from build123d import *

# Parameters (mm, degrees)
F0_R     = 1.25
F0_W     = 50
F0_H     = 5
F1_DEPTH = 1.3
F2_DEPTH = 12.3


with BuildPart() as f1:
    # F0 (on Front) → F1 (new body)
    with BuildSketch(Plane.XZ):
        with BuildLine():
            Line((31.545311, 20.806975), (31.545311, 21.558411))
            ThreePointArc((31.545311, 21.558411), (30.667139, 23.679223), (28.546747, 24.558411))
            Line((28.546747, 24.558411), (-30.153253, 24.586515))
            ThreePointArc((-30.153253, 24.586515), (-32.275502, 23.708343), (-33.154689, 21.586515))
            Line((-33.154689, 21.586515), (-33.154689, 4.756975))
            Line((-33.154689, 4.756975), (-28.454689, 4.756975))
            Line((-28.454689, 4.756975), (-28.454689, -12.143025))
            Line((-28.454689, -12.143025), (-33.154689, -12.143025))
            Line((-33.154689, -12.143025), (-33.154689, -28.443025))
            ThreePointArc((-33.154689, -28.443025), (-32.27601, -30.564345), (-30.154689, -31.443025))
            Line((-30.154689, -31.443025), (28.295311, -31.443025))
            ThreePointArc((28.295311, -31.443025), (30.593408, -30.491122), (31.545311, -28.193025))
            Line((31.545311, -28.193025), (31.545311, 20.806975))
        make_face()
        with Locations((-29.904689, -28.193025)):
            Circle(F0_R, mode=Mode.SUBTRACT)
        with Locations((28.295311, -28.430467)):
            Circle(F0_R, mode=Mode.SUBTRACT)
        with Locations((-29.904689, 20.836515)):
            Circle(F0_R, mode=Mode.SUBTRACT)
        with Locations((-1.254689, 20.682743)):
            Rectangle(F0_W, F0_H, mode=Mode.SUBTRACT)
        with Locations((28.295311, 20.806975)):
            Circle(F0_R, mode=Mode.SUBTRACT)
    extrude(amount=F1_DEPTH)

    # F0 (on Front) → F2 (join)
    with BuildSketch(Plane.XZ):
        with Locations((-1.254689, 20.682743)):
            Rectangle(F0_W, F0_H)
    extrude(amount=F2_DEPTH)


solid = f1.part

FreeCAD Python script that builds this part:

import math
import FreeCAD as App
import Part
import Sketcher

V = App.Vector
Q = App.Units.Quantity

doc = App.newDocument("Part")
body = doc.addObject("PartDesign::Body", "Body")

sketch1 = body.newObject("Sketcher::SketchObject", "Sketch")
sketch1.AttachmentSupport = (doc.getObject("XZ_Plane"), [""])
sketch1.MapMode = "FlatFace"
sketch1.addGeometry([
    Part.ArcOfCircle(Part.Circle(V(28.5, 21.6, 0), V(0, 0, 1), 3), math.radians(0), math.radians(90)),
    Part.LineSegment(V(28.5, 24.6, 0), V(-30.2, 24.6, 0)),
    Part.ArcOfCircle(Part.Circle(V(-30.2, 21.6, 0), V(0, 0, 1), 3), math.radians(90), math.radians(180)),
    Part.LineSegment(V(-33.2, 21.6, 0), V(-33.2, 4.8, 0)),
    Part.LineSegment(V(-33.2, 4.8, 0), V(-28.5, 4.8, 0)),
    Part.LineSegment(V(-28.5, 4.8, 0), V(-28.5, -12.1, 0)),
    Part.LineSegment(V(-28.5, -12.1, 0), V(-33.2, -12.1, 0)),
    Part.LineSegment(V(-33.2, -12.1, 0), V(-33.2, -28.4, 0)),
    Part.ArcOfCircle(Part.Circle(V(-30.2, -28.4, 0), V(0, 0, 1), 3), math.radians(180), math.radians(270)),
    Part.LineSegment(V(-30.2, -31.4, 0), V(28.3, -31.4, 0)),
    Part.ArcOfCircle(Part.Circle(V(28.3, -28.2, 0), V(0, 0, 1), 3.3), math.radians(-90), math.radians(0)),
    Part.LineSegment(V(31.5, -28.2, 0), V(31.5, 21.6, 0)),
    Part.Circle(V(-29.9, -28.2, 0), V(0, 0, 1), 1.2),
    Part.Circle(V(28.3, -28.4, 0), V(0, 0, 1), 1.2),
    Part.Circle(V(-29.9, 20.8, 0), V(0, 0, 1), 1.2),
    Part.LineSegment(V(23.7, 18.2, 0), V(-26.3, 18.2, 0)),
    Part.LineSegment(V(-26.3, 18.2, 0), V(-26.3, 23.2, 0)),
    Part.LineSegment(V(-26.3, 23.2, 0), V(23.7, 23.2, 0)),
    Part.LineSegment(V(23.7, 23.2, 0), V(23.7, 18.2, 0)),
    Part.Circle(V(28.3, 20.8, 0), V(0, 0, 1), 1.2),
], False)
sketch1.addConstraint([
    Sketcher.Constraint("Tangent", 0, 2, 1, 1),
    Sketcher.Constraint("Tangent", 1, 2, 2, 1),
    Sketcher.Constraint("Tangent", 2, 2, 3, 1),
    Sketcher.Constraint("Coincident", 3, 2, 4, 1),
    Sketcher.Constraint("Coincident", 4, 2, 5, 1),
    Sketcher.Constraint("Coincident", 5, 2, 6, 1),
    Sketcher.Constraint("Coincident", 6, 2, 7, 1),
    Sketcher.Constraint("Tangent", 7, 2, 8, 1),
    Sketcher.Constraint("Tangent", 8, 2, 9, 1),
    Sketcher.Constraint("Tangent", 9, 2, 10, 1),
    Sketcher.Constraint("Tangent", 10, 2, 11, 1),
    Sketcher.Constraint("Tangent", 11, 2, 0, 1),
    Sketcher.Constraint("Coincident", 15, 2, 16, 1),
    Sketcher.Constraint("Coincident", 16, 2, 17, 1),
    Sketcher.Constraint("Coincident", 17, 2, 18, 1),
    Sketcher.Constraint("Coincident", 18, 2, 15, 1),
    Sketcher.Constraint("Vertical", 3),
    Sketcher.Constraint("Horizontal", 4),
    Sketcher.Constraint("Vertical", 5),
    Sketcher.Constraint("Horizontal", 6),
    Sketcher.Constraint("Vertical", 7),
    Sketcher.Constraint("Horizontal", 9),
    Sketcher.Constraint("Vertical", 11),
    Sketcher.Constraint("Horizontal", 15),
    Sketcher.Constraint("Vertical", 16),
    Sketcher.Constraint("Horizontal", 17),
    Sketcher.Constraint("Vertical", 18),
    Sketcher.Constraint("Equal", 0, 2),
    Sketcher.Constraint("Equal", 2, 8),
    Sketcher.Constraint("Equal", 12, 13),
    Sketcher.Constraint("Equal", 13, 14),
    Sketcher.Constraint("Equal", 14, 19),
    Sketcher.Constraint("Horizontal", 10, 3, 12, 3),
    Sketcher.Constraint("Vertical", 2, 3, 8, 3),
    Sketcher.Constraint("Vertical", 10, 3, 13, 3),
    Sketcher.Constraint("Vertical", 12, 3, 14, 3),
    Sketcher.Constraint("Vertical", 13, 3, 19, 3),
    Sketcher.Constraint("Radius", 0, Q("3.000002 mm")),
    Sketcher.Constraint("Diameter", 12, Q("2.5 mm")),
    Sketcher.Constraint("DistanceX", 15, 2, 15, 1, Q("50 mm")),
    Sketcher.Constraint("DistanceY", 16, 1, 16, 2, Q("5 mm")),
    Sketcher.Constraint("Radius", 10, Q("3.25 mm")),
    Sketcher.Constraint("DistanceX", 4, 1, 4, 2, Q("4.7 mm")),
    Sketcher.Constraint("DistanceY", 5, 2, 5, 1, Q("16.9 mm")),
    Sketcher.Constraint("DistanceY", 7, 2, 7, 1, Q("16.3 mm")),
    Sketcher.Constraint("DistanceY", 10, 3, 19, 3, Q("49 mm")),
    Sketcher.Constraint("DistanceX", 9, 1, 9, 2, Q("58.45 mm")),
    Sketcher.Constraint("DistanceX", 12, 3, 10, 3, Q("58.2 mm")),
    Sketcher.Constraint("DistanceX", 2, 3, 15, 2, Q("3.9 mm")),
    Sketcher.Constraint("DistanceY", 14, 3, 2, 3, Q("0.75 mm")),
    Sketcher.Constraint("DistanceY", 3, 2, 3, 1, Q("16.82954 mm")),
    Sketcher.Constraint("DistanceY", 11, 1, 11, 2, Q("49.751436 mm")),
    Sketcher.Constraint("DistanceX", -1, 1, 0, 3, Q("28.545309 mm")),
    Sketcher.Constraint("DistanceY", -1, 1, 0, 3, Q("21.55841 mm")),
    Sketcher.Constraint("DistanceY", 8, 3, 13, 3, Q("0.012559 mm")),
    Sketcher.Constraint("DistanceY", 15, 2, 14, 3, Q("2.653772 mm")),
])
pad1 = body.newObject("PartDesign::Pad", "Pad")
pad1.Profile = sketch1
pad1.Length = 1.3

sketch2 = body.newObject("Sketcher::SketchObject", "Sketch001")
sketch2.AttachmentSupport = (doc.getObject("XZ_Plane"), [""])
sketch2.MapMode = "FlatFace"
sketch2.addGeometry([
    Part.LineSegment(V(-26, 23, 0), V(-26, 18, 0)),
    Part.LineSegment(V(-26, 18, 0), V(24, 18, 0)),
    Part.LineSegment(V(24, 18, 0), V(24, 23, 0)),
    Part.LineSegment(V(24, 23, 0), V(-26, 23, 0)),
], False)
sketch2.addConstraint([
    Sketcher.Constraint("Coincident", 0, 2, 1, 1),
    Sketcher.Constraint("Coincident", 1, 2, 2, 1),
    Sketcher.Constraint("Coincident", 2, 2, 3, 1),
    Sketcher.Constraint("Coincident", 3, 2, 0, 1),
    Sketcher.Constraint("Vertical", 0),
    Sketcher.Constraint("Horizontal", 1),
    Sketcher.Constraint("Vertical", 2),
    Sketcher.Constraint("Horizontal", 3),
    Sketcher.Constraint("DistanceX", 1, 1, 1, 2, Q("50 mm")),
    Sketcher.Constraint("DistanceY", 0, 2, 0, 1, Q("5 mm")),
    Sketcher.Constraint("DistanceX", 0, 2, -1, 1, Q("26.254689 mm")),
    Sketcher.Constraint("DistanceY", -1, 1, 0, 2, Q("18.182743 mm")),
])
pad2 = body.newObject("PartDesign::Pad", "Pad001")
pad2.Profile = sketch2
pad2.Length = 12.3

doc.recompute()
